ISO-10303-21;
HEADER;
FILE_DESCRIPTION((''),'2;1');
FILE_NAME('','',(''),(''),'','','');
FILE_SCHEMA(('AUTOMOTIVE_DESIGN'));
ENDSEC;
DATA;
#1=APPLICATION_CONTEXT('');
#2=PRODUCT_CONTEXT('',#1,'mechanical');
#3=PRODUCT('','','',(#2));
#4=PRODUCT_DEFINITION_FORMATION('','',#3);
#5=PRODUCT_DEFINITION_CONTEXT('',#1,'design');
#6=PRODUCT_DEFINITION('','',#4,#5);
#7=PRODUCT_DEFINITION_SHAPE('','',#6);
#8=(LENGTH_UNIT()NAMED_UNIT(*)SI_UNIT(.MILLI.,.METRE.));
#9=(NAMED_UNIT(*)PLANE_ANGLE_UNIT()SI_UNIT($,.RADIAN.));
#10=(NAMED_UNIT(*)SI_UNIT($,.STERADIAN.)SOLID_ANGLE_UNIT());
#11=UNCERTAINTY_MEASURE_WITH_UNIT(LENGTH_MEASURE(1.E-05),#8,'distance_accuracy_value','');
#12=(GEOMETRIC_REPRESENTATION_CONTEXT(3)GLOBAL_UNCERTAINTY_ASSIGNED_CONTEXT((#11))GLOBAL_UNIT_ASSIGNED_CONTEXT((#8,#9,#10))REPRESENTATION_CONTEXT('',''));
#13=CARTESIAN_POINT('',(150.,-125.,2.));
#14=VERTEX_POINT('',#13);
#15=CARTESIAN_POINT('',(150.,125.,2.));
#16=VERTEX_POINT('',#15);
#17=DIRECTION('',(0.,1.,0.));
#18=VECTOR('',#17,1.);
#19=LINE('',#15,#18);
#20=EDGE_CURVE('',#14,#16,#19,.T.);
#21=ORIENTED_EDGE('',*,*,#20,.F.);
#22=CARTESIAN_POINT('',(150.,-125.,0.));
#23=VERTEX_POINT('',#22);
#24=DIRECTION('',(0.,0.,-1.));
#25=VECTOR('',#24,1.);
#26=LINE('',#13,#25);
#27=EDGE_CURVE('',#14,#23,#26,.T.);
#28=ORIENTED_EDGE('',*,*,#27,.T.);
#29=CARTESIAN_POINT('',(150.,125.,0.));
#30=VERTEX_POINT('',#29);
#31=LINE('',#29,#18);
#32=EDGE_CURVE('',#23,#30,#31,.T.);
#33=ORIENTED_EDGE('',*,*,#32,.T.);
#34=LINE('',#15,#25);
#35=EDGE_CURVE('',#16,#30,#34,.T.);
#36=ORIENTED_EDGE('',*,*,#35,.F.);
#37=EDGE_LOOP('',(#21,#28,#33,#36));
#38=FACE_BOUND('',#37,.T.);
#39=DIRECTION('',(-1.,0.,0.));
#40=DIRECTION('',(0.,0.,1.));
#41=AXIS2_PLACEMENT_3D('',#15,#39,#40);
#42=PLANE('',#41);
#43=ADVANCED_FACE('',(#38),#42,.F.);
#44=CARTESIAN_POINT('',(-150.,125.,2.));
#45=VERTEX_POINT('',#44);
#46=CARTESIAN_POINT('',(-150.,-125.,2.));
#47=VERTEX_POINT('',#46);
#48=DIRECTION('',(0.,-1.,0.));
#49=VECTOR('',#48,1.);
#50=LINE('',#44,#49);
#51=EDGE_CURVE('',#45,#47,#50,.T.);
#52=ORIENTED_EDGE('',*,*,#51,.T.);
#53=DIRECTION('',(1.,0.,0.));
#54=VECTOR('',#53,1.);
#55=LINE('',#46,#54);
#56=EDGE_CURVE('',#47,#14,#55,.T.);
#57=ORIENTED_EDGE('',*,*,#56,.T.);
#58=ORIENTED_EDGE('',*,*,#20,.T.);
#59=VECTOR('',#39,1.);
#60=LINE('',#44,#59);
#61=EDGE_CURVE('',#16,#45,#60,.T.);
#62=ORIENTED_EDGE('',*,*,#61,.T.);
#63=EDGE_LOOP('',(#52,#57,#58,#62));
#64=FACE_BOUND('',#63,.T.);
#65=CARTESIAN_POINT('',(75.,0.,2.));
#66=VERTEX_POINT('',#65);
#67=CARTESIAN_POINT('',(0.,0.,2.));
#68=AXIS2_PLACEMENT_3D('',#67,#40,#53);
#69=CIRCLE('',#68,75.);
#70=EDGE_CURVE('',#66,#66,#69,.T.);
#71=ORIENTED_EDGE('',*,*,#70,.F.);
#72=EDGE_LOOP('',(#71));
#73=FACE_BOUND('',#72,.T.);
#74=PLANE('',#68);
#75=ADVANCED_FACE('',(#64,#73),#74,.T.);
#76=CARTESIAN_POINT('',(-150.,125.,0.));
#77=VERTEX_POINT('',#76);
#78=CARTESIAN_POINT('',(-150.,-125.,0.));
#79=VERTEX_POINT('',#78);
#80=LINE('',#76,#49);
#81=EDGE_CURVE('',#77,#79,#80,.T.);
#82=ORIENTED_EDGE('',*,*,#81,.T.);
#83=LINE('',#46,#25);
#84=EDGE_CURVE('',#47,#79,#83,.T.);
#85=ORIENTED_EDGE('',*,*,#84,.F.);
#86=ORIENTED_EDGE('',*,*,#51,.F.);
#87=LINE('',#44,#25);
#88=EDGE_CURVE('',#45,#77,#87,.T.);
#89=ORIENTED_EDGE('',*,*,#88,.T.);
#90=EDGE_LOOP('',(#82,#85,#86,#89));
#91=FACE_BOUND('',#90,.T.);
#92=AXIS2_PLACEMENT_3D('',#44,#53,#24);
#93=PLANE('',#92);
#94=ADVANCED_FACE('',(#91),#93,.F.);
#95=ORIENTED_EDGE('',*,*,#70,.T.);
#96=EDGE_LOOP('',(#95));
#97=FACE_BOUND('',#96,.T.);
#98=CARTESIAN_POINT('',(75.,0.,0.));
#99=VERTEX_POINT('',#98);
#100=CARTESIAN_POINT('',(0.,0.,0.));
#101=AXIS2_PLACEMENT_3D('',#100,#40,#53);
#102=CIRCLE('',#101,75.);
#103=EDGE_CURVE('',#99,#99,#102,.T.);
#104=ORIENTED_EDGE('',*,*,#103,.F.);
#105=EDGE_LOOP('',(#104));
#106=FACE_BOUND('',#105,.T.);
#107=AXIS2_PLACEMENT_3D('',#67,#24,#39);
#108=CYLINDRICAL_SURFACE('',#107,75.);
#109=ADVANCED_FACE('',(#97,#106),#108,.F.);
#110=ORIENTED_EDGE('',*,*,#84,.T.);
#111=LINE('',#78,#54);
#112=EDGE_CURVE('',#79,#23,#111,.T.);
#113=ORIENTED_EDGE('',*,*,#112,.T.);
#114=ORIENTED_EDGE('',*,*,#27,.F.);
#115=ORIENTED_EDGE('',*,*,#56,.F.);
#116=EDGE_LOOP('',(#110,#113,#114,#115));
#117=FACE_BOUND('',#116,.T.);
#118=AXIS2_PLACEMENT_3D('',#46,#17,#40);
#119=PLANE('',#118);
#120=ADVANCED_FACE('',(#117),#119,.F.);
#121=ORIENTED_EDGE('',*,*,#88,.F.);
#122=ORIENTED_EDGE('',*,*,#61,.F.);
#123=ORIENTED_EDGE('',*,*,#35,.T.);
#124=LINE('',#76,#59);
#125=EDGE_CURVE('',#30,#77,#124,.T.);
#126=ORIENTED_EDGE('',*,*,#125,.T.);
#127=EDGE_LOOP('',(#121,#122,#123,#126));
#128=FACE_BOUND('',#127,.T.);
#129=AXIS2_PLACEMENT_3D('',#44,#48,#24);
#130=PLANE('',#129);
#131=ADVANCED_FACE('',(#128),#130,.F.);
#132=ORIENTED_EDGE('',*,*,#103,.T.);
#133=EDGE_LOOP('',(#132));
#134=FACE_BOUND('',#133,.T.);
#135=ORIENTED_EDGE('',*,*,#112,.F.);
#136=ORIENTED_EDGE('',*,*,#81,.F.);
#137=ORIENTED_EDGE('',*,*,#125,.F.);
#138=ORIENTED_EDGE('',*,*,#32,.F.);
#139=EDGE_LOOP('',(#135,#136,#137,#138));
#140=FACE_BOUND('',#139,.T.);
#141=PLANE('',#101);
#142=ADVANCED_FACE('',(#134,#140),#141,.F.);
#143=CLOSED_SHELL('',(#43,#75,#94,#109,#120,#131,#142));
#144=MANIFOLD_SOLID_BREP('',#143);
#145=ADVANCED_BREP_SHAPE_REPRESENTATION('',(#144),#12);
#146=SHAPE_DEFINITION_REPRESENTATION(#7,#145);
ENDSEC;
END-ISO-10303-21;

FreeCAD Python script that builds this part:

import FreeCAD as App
import Part
import Sketcher
from FreeCAD import Vector
Q = App.Units.Quantity


def add_polygon(sketch, points):
    """Adds a closed chain of lines whose ends are joined by coincident constraints."""
    first, n = sketch.GeometryCount, len(points)
    for a, b in zip(points, points[1:] + points[:1]):
        sketch.addGeometry(Part.LineSegment(App.Vector(*a, 0), App.Vector(*b, 0)), False)
    for i in range(n):
        sketch.addConstraint(Sketcher.Constraint("Coincident", first + i, 2, first + (i + 1) % n, 1))

doc = App.newDocument("Part")
body = doc.addObject("PartDesign::Body", "Body")

sketch1 = body.newObject("Sketcher::SketchObject", "Sketch")
sketch1.AttachmentSupport = (doc.getObject("XY_Plane"), [""])
sketch1.MapMode = "FlatFace"
add_polygon(sketch1, [(-150, 125), (-150, -125), (150, -125), (150, 125)])
sketch1.addGeometry(Part.Circle(Vector(0, 0, 0), Vector(0, 0, 1), 75), False)
sketch1.addConstraint([
    Sketcher.Constraint("Vertical", 0),
    Sketcher.Constraint("Horizontal", 1),
    Sketcher.Constraint("Vertical", 2),
    Sketcher.Constraint("Horizontal", 3),
    Sketcher.Constraint("Coincident", 4, 3, -1, 1),
    Sketcher.Constraint("Symmetric", 0, 2, 2, 2, -1, 1),
    Sketcher.Constraint("Diameter", 4, Q("150 mm")),
    Sketcher.Constraint("DistanceX", 1, 1, 1, 2, Q("300 mm")),
    Sketcher.Constraint("DistanceY", 0, 2, 0, 1, Q("250 mm")),
])
pad1 = body.newObject("PartDesign::Pad", "Pad")
pad1.Profile = sketch1
pad1.Length = 2

doc.recompute()
